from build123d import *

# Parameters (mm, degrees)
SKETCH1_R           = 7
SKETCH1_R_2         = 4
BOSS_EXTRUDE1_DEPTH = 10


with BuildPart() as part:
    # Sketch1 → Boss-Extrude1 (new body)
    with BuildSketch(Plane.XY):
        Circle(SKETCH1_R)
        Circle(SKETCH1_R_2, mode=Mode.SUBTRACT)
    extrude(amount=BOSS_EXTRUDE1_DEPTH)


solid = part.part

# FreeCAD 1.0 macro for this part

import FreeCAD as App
import Part
import Sketcher

V = App.Vector

doc = App.newDocument("Part")
params = doc.addObject("Spreadsheet::Sheet", "Params")
for row, (alias, value) in enumerate([
    ("sketch1_diameter", "14 mm"),
    ("sketch1_diameter2", "8 mm"),
    ("pad1_length", "10 mm"),
], start=1):
    params.set(f"A{row}", alias)
    params.set(f"B{row}", "=" + value)
    params.setAlias(f"B{row}", alias)

body = doc.addObject("PartDesign::Body", "Body")

# Sketch on XY plane
sketch1 = body.newObject("Sketcher::SketchObject", "Sketch")
sketch1.AttachmentSupport = (doc.getObject("XY_Plane"), [""])
sketch1.MapMode = "FlatFace"
sketch1.addGeometry([
    Part.Circle(V(0, 0, 0), V(0, 0, 1), 7),
    Part.Circle(V(0, 0, 0), V(0, 0, 1), 4),
], False)
sketch1.addConstraint([
    Sketcher.Constraint("Coincident", 0, 3, -1, 1),
    Sketcher.Constraint("Coincident", 1, 3, -1, 1),
    Sketcher.Constraint("Diameter", 0, 14.0),
    Sketcher.Constraint("Diameter", 1, 8.0),
])
sketch1.setExpression("Constraints[2]", "Params.sketch1_diameter")
sketch1.setExpression("Constraints[3]", "Params.sketch1_diameter2")
pad1 = body.newObject("PartDesign::Pad", "Pad")
pad1.Profile = sketch1
pad1.setExpression("Length", "Params.pad1_length")

doc.recompute()
